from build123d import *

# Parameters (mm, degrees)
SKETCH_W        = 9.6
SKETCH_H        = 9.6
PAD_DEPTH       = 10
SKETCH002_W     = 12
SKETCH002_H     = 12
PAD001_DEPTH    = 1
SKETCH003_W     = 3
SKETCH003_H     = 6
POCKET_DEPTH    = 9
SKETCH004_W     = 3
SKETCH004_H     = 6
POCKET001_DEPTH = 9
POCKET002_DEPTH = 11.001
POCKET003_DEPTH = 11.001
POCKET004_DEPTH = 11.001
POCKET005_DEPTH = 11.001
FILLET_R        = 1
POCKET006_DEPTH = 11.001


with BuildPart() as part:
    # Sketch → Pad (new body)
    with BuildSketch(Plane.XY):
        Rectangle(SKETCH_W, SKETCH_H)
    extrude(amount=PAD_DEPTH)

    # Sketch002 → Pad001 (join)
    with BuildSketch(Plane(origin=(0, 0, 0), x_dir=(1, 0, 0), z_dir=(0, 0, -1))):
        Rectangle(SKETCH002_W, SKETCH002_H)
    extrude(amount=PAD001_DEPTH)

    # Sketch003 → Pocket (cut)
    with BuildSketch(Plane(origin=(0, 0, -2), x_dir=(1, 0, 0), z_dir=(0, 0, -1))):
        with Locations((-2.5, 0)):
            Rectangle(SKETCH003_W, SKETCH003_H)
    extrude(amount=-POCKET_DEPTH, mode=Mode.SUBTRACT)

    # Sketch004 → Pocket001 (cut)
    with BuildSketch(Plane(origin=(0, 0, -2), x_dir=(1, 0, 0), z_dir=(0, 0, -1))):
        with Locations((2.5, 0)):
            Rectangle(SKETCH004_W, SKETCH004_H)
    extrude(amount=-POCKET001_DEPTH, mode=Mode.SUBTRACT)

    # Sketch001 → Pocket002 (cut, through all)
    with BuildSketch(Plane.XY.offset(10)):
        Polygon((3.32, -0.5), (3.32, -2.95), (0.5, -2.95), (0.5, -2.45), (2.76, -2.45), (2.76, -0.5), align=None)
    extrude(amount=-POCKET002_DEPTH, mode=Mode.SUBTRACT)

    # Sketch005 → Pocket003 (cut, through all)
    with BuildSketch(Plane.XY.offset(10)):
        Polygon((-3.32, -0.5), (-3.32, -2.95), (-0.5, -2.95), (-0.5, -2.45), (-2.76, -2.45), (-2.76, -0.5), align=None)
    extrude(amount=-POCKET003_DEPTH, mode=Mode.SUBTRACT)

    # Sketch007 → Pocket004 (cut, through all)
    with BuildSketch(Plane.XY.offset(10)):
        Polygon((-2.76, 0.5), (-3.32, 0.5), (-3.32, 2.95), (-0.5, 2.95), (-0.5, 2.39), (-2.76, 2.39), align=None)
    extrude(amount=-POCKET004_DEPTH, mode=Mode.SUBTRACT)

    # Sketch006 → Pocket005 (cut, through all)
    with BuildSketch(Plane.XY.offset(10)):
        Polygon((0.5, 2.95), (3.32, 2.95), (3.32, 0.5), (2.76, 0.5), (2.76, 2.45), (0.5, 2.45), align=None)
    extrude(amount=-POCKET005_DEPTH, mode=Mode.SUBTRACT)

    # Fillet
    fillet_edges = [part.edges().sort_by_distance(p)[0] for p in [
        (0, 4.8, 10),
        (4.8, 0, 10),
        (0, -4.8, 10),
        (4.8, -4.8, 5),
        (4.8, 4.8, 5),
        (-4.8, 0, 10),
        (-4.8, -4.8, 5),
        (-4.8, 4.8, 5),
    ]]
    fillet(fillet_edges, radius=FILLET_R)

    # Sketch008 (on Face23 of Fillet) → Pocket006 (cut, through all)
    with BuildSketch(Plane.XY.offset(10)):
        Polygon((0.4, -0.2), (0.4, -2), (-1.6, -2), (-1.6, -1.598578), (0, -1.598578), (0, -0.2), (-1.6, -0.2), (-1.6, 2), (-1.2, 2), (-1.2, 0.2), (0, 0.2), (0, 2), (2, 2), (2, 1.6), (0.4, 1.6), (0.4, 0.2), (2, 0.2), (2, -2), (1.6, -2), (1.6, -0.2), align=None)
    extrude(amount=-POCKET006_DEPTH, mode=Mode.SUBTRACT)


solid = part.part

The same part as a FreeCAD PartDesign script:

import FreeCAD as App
import Part
import Sketcher
Q = App.Units.Quantity


def edges_at(feature, points):
    """Names of the edges that pass closest to the given points."""
    edges = feature.Shape.Edges
    near = lambda p: min(range(len(edges)), key=lambda i: edges[i].distToShape(Part.Vertex(*p))[0])
    return sorted({f"Edge{near(p) + 1}" for p in points})


def add_polygon(sketch, points):
    """Adds a closed chain of lines whose ends are joined by coincident constraints."""
    first, n = sketch.GeometryCount, len(points)
    for a, b in zip(points, points[1:] + points[:1]):
        sketch.addGeometry(Part.LineSegment(App.Vector(*a, 0), App.Vector(*b, 0)), False)
    for i in range(n):
        sketch.addConstraint(Sketcher.Constraint("Coincident", first + i, 2, first + (i + 1) % n, 1))

doc = App.newDocument("Part")
body = doc.addObject("PartDesign::Body", "Body")

sketch1 = body.newObject("Sketcher::SketchObject", "Sketch")
sketch1.AttachmentSupport = (doc.getObject("XY_Plane"), [""])
sketch1.MapMode = "FlatFace"
add_polygon(sketch1, [(-4.8, 4.8), (-4.8, -4.8), (4.8, -4.8), (4.8, 4.8)])
sketch1.addConstraint([
    Sketcher.Constraint("Vertical", 0),
    Sketcher.Constraint("Horizontal", 1),
    Sketcher.Constraint("Vertical", 2),
    Sketcher.Constraint("Horizontal", 3),
    Sketcher.Constraint("Symmetric", 0, 2, 2, 2, -1, 1),
    Sketcher.Constraint("Equal", 3, 0),
    Sketcher.Constraint("DistanceX", 1, 1, 1, 2, Q("9.6 mm")),
])
pad1 = body.newObject("PartDesign::Pad", "Pad")
pad1.Profile = sketch1
pad1.Length = 10

sketch2 = body.newObject("Sketcher::SketchObject", "Sketch001")
sketch2.AttachmentSupport = (doc.getObject("XY_Plane"), [""])
sketch2.MapMode = "FlatFace"
add_polygon(sketch2, [(-6, -6), (-6, 6), (6, 6), (6, -6)])
sketch2.addConstraint([
    Sketcher.Constraint("Vertical", 0),
    Sketcher.Constraint("Horizontal", 1),
    Sketcher.Constraint("Vertical", 2),
    Sketcher.Constraint("Horizontal", 3),
    Sketcher.Constraint("Symmetric", 0, 2, 2, 2, -1, 1),
    Sketcher.Constraint("Equal", 3, 0),
    Sketcher.Constraint("DistanceX", 1, 1, 1, 2, Q("12 mm")),
])
pad2 = body.newObject("PartDesign::Pad", "Pad001")
pad2.Profile = sketch2
pad2.Length = 1
pad2.Reversed = True

sketch3 = body.newObject("Sketcher::SketchObject", "Sketch002")
sketch3.AttachmentSupport = (doc.getObject("XY_Plane"), [""])
sketch3.MapMode = "FlatFace"
sketch3.AttachmentOffset = App.Placement(App.Vector(0, 0, -2), App.Rotation())
add_polygon(sketch3, [(-4, -3), (-4, 3), (-1, 3), (-1, -3)])
sketch3.addConstraint([
    Sketcher.Constraint("Vertical", 0),
    Sketcher.Constraint("Horizontal", 1),
    Sketcher.Constraint("Vertical", 2),
    Sketcher.Constraint("Horizontal", 3),
    Sketcher.Constraint("DistanceX", 1, 1, 1, 2, Q("3 mm")),
    Sketcher.Constraint("DistanceY", 0, 1, 0, 2, Q("6 mm")),
    Sketcher.Constraint("DistanceX", 0, 2, -1, 1, Q("4 mm")),
    Sketcher.Constraint("DistanceY", -1, 1, 0, 2, Q("3 mm")),
])
pocket1 = body.newObject("PartDesign::Pocket", "Pocket")
pocket1.Profile = sketch3
pocket1.Length = 9
pocket1.Reversed = True

sketch4 = body.newObject("Sketcher::SketchObject", "Sketch003")
sketch4.AttachmentSupport = (doc.getObject("XY_Plane"), [""])
sketch4.MapMode = "FlatFace"
sketch4.AttachmentOffset = App.Placement(App.Vector(0, 0, -2), App.Rotation())
add_polygon(sketch4, [(1, -3), (1, 3), (4, 3), (4, -3)])
sketch4.addConstraint([
    Sketcher.Constraint("Vertical", 0),
    Sketcher.Constraint("Horizontal", 1),
    Sketcher.Constraint("Vertical", 2),
    Sketcher.Constraint("Horizontal", 3),
    Sketcher.Constraint("DistanceX", 1, 1, 1, 2, Q("3 mm")),
    Sketcher.Constraint("DistanceY", 0, 1, 0, 2, Q("6 mm")),
    Sketcher.Constraint("DistanceX", -1, 1, 0, 2, Q("1 mm")),
    Sketcher.Constraint("DistanceY", -1, 1, 0, 2, Q("3 mm")),
])
pocket2 = body.newObject("PartDesign::Pocket", "Pocket001")
pocket2.Profile = sketch4
pocket2.Length = 9
pocket2.Reversed = True

sketch5 = body.newObject("Sketcher::SketchObject", "Sketch004")
sketch5.AttachmentSupport = (doc.getObject("XY_Plane"), [""])
sketch5.MapMode = "FlatFace"
sketch5.AttachmentOffset = App.Placement(App.Vector(0, 0, 10), App.Rotation())
add_polygon(sketch5, [(3.32, -2.95), (3.32, -0.5), (2.76, -0.5), (2.76, -2.45), (0.5, -2.45), (0.5, -2.95)])
sketch5.addConstraint([
    Sketcher.Constraint("Vertical", 0),
    Sketcher.Constraint("Horizontal", 1),
    Sketcher.Constraint("Vertical", 2),
    Sketcher.Constraint("Horizontal", 3),
    Sketcher.Constraint("Vertical", 4),
    Sketcher.Constraint("Horizontal", 5),
    Sketcher.Constraint("DistanceY", 4, 2, 4, 1, Q("0.5 mm")),
    Sketcher.Constraint("DistanceX", 1, 2, 1, 1, Q("0.56 mm")),
    Sketcher.Constraint("DistanceX", 3, 2, 3, 1, Q("2.26 mm")),
    Sketcher.Constraint("DistanceY", 0, 1, 0, 2, Q("2.45 mm")),
    Sketcher.Constraint("DistanceY", 0, 2, -1, 1, Q("0.5 mm")),
    Sketcher.Constraint("DistanceX", -1, 1, 3, 2, Q("0.5 mm")),
])
pocket3 = body.newObject("PartDesign::Pocket", "Pocket002")
pocket3.Profile = sketch5
pocket3.Type = "ThroughAll"

sketch6 = body.newObject("Sketcher::SketchObject", "Sketch005")
sketch6.AttachmentSupport = (doc.getObject("XY_Plane"), [""])
sketch6.MapMode = "FlatFace"
sketch6.AttachmentOffset = App.Placement(App.Vector(0, 0, 10), App.Rotation())
add_polygon(sketch6, [(-3.32, -0.5), (-3.32, -2.95), (-0.5, -2.95), (-0.5, -2.45), (-2.76, -2.45), (-2.76, -0.5)])
sketch6.addConstraint([
    Sketcher.Constraint("Vertical", 0),
    Sketcher.Constraint("Horizontal", 1),
    Sketcher.Constraint("Vertical", 2),
    Sketcher.Constraint("Horizontal", 3),
    Sketcher.Constraint("Vertical", 4),
    Sketcher.Constraint("Horizontal", 5),
    Sketcher.Constraint("DistanceY", 2, 1, 2, 2, Q("0.5 mm")),
    Sketcher.Constraint("DistanceX", 1, 1, 1, 2, Q("2.82 mm")),
    Sketcher.Constraint("DistanceX", 3, 2, 3, 1, Q("2.26 mm")),
    Sketcher.Constraint("DistanceY", 0, 2, 0, 1, Q("2.45 mm")),
    Sketcher.Constraint("DistanceX", 1, 2, -1, 1, Q("0.5 mm")),
    Sketcher.Constraint("DistanceY", 4, 2, -1, 1, Q("0.5 mm")),
])
pocket4 = body.newObject("PartDesign::Pocket", "Pocket003")
pocket4.Profile = sketch6
pocket4.Type = "ThroughAll"

sketch7 = body.newObject("Sketcher::SketchObject", "Sketch006")
sketch7.AttachmentSupport = (doc.getObject("XY_Plane"), [""])
sketch7.MapMode = "FlatFace"
sketch7.AttachmentOffset = App.Placement(App.Vector(0, 0, 10), App.Rotation())
add_polygon(sketch7, [(-3.32, 0.5), (-2.76, 0.5), (-2.76, 2.39), (-0.5, 2.39), (-0.5, 2.95), (-3.32, 2.95)])
sketch7.addConstraint([
    Sketcher.Constraint("Horizontal", 0),
    Sketcher.Constraint("Vertical", 1),
    Sketcher.Constraint("Horizontal", 2),
    Sketcher.Constraint("Vertical", 3),
    Sketcher.Constraint("Horizontal", 4),
    Sketcher.Constraint("Vertical", 5),
    Sketcher.Constraint("Equal", 0, 3),
    Sketcher.Constraint("DistanceX", 0, 1, 0, 2, Q("0.56 mm")),
    Sketcher.Constraint("DistanceX", 2, 1, 2, 2, Q("2.26 mm")),
    Sketcher.Constraint("DistanceY", 1, 1, 1, 2, Q("1.89 mm")),
    Sketcher.Constraint("DistanceY", -1, 1, 0, 2, Q("0.5 mm")),
    Sketcher.Constraint("DistanceX", 2, 2, -1, 1, Q("0.5 mm")),
])
pocket5 = body.newObject("PartDesign::Pocket", "Pocket004")
pocket5.Profile = sketch7
pocket5.Type = "ThroughAll"

sketch8 = body.newObject("Sketcher::SketchObject", "Sketch007")
sketch8.AttachmentSupport = (doc.getObject("XY_Plane"), [""])
sketch8.MapMode = "FlatFace"
sketch8.AttachmentOffset = App.Placement(App.Vector(0, 0, 10), App.Rotation())
add_polygon(sketch8, [(3.32, 2.95), (0.5, 2.95), (0.5, 2.45), (2.76, 2.45), (2.76, 0.5), (3.32, 0.5)])
sketch8.addConstraint([
    Sketcher.Constraint("Horizontal", 0),
    Sketcher.Constraint("Vertical", 1),
    Sketcher.Constraint("Horizontal", 2),
    Sketcher.Constraint("Vertical", 3),
    Sketcher.Constraint("Horizontal", 4),
    Sketcher.Constraint("Vertical", 5),
    Sketcher.Constraint("DistanceY", 1, 2, 1, 1, Q("0.5 mm")),
    Sketcher.Constraint("DistanceX", 0, 2, 0, 1, Q("2.82 mm")),
    Sketcher.Constraint("DistanceX", 2, 1, 2, 2, Q("2.26 mm")),
    Sketcher.Constraint("DistanceY", 3, 2, 3, 1, Q("1.95 mm")),
    Sketcher.Constraint("DistanceX", -1, 1, 0, 2, Q("0.5 mm")),
    Sketcher.Constraint("DistanceY", -1, 1, 3, 2, Q("0.5 mm")),
])
pocket6 = body.newObject("PartDesign::Pocket", "Pocket005")
pocket6.Profile = sketch8
pocket6.Type = "ThroughAll"
doc.recompute()

fillet = body.newObject("PartDesign::Fillet", "Fillet")
fillet.Base = (pocket6, edges_at(pocket6, [
    (0, 4.8, 10),
    (4.8, 0, 10),
    (0, -4.8, 10),
    (4.8, -4.8, 5),
    (4.8, 4.8, 5),
    (-4.8, 0, 10),
    (-4.8, -4.8, 5),
    (-4.8, 4.8, 5),
]))
fillet.Radius = 1

sketch9 = body.newObject("Sketcher::SketchObject", "Sketch008")
sketch9.AttachmentSupport = (doc.getObject("XY_Plane"), [""])
sketch9.MapMode = "FlatFace"
sketch9.AttachmentOffset = App.Placement(App.Vector(0, 0, 10), App.Rotation())
add_polygon(sketch9, [(0.4, -2), (0.4, -0.2), (1.6, -0.2), (1.6, -2), (2, -2), (2, 0.2), (0.4, 0.2), (0.4, 1.6), (2, 1.6), (2, 2), (0, 2), (0, 0.2), (-1.2, 0.2), (-1.2, 2), (-1.6, 2), (-1.6, -0.2), (0, -0.2), (0, -1.598578), (-1.6, -1.598578), (-1.6, -2)])
sketch9.addConstraint([
    Sketcher.Constraint("Vertical", 0),
    Sketcher.Constraint("Horizontal", 1),
    Sketcher.Constraint("Vertical", 2),
    Sketcher.Constraint("Horizontal", 3),
    Sketcher.Constraint("Vertical", 4),
    Sketcher.Constraint("Horizontal", 5),
    Sketcher.Constraint("Vertical", 6),
    Sketcher.Constraint("Horizontal", 7),
    Sketcher.Constraint("Vertical", 8),
    Sketcher.Constraint("Horizontal", 9),
    Sketcher.Constraint("Vertical", 10),
    Sketcher.Constraint("Horizontal", 11),
    Sketcher.Constraint("Vertical", 12),
    Sketcher.Constraint("Horizontal", 13),
    Sketcher.Constraint("Vertical", 14),
    Sketcher.Constraint("Horizontal", 15),
    Sketcher.Constraint("Vertical", 16),
    Sketcher.Constraint("Horizontal", 17),
    Sketcher.Constraint("Vertical", 18),
    Sketcher.Constraint("Horizontal", 19),
    Sketcher.Constraint("Symmetric", 2, 2, 13, 2, -1, 1),
    Sketcher.Constraint("Symmetric", 10, 2, 15, 2, -1, 1),
    Sketcher.Constraint("Symmetric", 2, 2, 18, 2, -2),
    Sketcher.Constraint("Symmetric", 0, 2, 5, 2, -1),
    Sketcher.Constraint("Symmetric", 3, 2, 8, 2, -1),
    Sketcher.Constraint("PointOnObject", 9, 2, -2),
    Sketcher.Constraint("Horizontal", 5, 2, 10, 2),
    Sketcher.Constraint("Equal", 1, 11),
    Sketcher.Constraint("Equal", 3, 13),
    Sketcher.Constraint("Equal", 13, 8),
    Sketcher.Constraint("DistanceX", 9, 2, 9, 1, Q("2 mm")),
    Sketcher.Constraint("DistanceX", 1, 1, 1, 2, Q("1.2 mm")),
    Sketcher.Constraint("DistanceY", 0, 1, 0, 2, Q("1.8 mm")),
    Sketcher.Constraint("DistanceY", 4, 1, 4, 2, Q("2.2 mm")),
    Sketcher.Constraint("DistanceY", 16, 2, 16, 1, Q("1.398578 mm")),
])
pocket7 = body.newObject("PartDesign::Pocket", "Pocket006")
pocket7.Profile = sketch9
pocket7.Type = "ThroughAll"

doc.recompute()
